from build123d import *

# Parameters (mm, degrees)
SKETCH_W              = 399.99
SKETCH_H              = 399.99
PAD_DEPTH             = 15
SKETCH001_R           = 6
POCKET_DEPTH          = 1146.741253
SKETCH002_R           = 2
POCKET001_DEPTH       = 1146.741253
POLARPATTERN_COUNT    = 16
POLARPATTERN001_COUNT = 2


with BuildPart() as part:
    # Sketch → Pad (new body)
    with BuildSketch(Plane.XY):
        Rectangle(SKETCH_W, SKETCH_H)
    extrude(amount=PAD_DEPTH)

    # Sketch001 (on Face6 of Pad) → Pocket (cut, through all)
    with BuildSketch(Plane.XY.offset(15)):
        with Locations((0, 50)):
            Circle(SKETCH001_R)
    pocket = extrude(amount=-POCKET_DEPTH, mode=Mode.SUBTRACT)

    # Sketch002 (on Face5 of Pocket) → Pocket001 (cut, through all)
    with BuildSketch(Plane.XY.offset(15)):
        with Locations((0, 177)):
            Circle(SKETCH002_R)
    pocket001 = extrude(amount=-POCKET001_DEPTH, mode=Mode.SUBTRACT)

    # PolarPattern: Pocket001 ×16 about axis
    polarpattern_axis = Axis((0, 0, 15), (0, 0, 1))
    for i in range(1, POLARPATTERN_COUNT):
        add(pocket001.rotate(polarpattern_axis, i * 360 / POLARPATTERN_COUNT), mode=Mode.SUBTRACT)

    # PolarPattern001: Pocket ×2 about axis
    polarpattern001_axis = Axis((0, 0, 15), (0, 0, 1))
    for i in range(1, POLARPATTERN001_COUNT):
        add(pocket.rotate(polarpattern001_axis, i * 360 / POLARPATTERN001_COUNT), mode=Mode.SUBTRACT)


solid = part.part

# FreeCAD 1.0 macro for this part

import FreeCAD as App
import Part
import Sketcher
from FreeCAD import Vector

doc = App.newDocument("Part")
body = doc.addObject("PartDesign::Body", "Body")

# Sketch on XY plane
sketch1 = body.newObject("Sketcher::SketchObject", "Sketch")
sketch1.AttachmentSupport = (doc.getObject("XY_Plane"), [""])
sketch1.MapMode = "FlatFace"
sketch1.addGeometry([
    Part.LineSegment(Vector(-199.995, 199.995, 0), Vector(-199.995, -199.995, 0)),
    Part.LineSegment(Vector(-199.995, -199.995, 0), Vector(199.995, -199.995, 0)),
    Part.LineSegment(Vector(199.995, -199.995, 0), Vector(199.995, 199.995, 0)),
    Part.LineSegment(Vector(199.995, 199.995, 0), Vector(-199.995, 199.995, 0)),
], False)
sketch1.addConstraint([
    Sketcher.Constraint("Coincident", 0, 2, 1, 1),
    Sketcher.Constraint("Coincident", 1, 2, 2, 1),
    Sketcher.Constraint("Coincident", 2, 2, 3, 1),
    Sketcher.Constraint("Coincident", 3, 2, 0, 1),
    Sketcher.Constraint("Vertical", 0),
    Sketcher.Constraint("Horizontal", 1),
    Sketcher.Constraint("Vertical", 2),
    Sketcher.Constraint("Horizontal", 3),
    Sketcher.Constraint("Symmetric", 0, 2, 2, 2, -1, 1),
    Sketcher.Constraint("Equal", 3, 0),
    Sketcher.Constraint("DistanceX", 1, 1, 1, 2, 399.99),
])
pad1 = body.newObject("PartDesign::Pad", "Pad")
pad1.Profile = sketch1
pad1.Length = 15

# Sketch on XY plane
sketch2 = body.newObject("Sketcher::SketchObject", "Sketch001")
sketch2.AttachmentSupport = (doc.getObject("XY_Plane"), [""])
sketch2.MapMode = "FlatFace"
sketch2.AttachmentOffset = App.Placement(Vector(0, 0, 15), App.Rotation())
sketch2.addGeometry(Part.Circle(Vector(0, 50, 0), Vector(0, 0, 1), 6), False)
sketch2.addConstraint([
    Sketcher.Constraint("PointOnObject", 0, 3, -2),
    Sketcher.Constraint("Diameter", 0, 12.0),
    Sketcher.Constraint("DistanceY", -1, 1, 0, 3, 50.0),
])
pocket1 = body.newObject("PartDesign::Pocket", "Pocket")
pocket1.Profile = sketch2
pocket1.Type = "ThroughAll"

# Sketch on XY plane
sketch3 = body.newObject("Sketcher::SketchObject", "Sketch002")
sketch3.AttachmentSupport = (doc.getObject("XY_Plane"), [""])
sketch3.MapMode = "FlatFace"
sketch3.AttachmentOffset = App.Placement(Vector(0, 0, 15), App.Rotation())
sketch3.addGeometry(Part.Circle(Vector(0, 177, 0), Vector(0, 0, 1), 2), False)
sketch3.addConstraint([
    Sketcher.Constraint("PointOnObject", 0, 3, -2),
    Sketcher.Constraint("Diameter", 0, 4.0),
    Sketcher.Constraint("DistanceY", -1, 1, 0, 3, 177.0),
])
pocket2 = body.newObject("PartDesign::Pocket", "Pocket001")
pocket2.Profile = sketch3
pocket2.Type = "ThroughAll"
doc.recompute()

polarpattern = body.newObject("PartDesign::PolarPattern", "PolarPattern")
polarpattern.Originals = [pocket2]
polarpattern.Axis = (doc.getObject("Z_Axis"), [""])
polarpattern.Angle = 360
polarpattern.Occurrences = 16
body.Tip = polarpattern
doc.recompute()

polarpattern2 = body.newObject("PartDesign::PolarPattern", "PolarPattern001")
polarpattern2.Originals = [pocket1]
polarpattern2.Axis = (doc.getObject("Z_Axis"), [""])
polarpattern2.Angle = 360
polarpattern2.Occurrences = 2
body.Tip = polarpattern2

doc.recompute()
